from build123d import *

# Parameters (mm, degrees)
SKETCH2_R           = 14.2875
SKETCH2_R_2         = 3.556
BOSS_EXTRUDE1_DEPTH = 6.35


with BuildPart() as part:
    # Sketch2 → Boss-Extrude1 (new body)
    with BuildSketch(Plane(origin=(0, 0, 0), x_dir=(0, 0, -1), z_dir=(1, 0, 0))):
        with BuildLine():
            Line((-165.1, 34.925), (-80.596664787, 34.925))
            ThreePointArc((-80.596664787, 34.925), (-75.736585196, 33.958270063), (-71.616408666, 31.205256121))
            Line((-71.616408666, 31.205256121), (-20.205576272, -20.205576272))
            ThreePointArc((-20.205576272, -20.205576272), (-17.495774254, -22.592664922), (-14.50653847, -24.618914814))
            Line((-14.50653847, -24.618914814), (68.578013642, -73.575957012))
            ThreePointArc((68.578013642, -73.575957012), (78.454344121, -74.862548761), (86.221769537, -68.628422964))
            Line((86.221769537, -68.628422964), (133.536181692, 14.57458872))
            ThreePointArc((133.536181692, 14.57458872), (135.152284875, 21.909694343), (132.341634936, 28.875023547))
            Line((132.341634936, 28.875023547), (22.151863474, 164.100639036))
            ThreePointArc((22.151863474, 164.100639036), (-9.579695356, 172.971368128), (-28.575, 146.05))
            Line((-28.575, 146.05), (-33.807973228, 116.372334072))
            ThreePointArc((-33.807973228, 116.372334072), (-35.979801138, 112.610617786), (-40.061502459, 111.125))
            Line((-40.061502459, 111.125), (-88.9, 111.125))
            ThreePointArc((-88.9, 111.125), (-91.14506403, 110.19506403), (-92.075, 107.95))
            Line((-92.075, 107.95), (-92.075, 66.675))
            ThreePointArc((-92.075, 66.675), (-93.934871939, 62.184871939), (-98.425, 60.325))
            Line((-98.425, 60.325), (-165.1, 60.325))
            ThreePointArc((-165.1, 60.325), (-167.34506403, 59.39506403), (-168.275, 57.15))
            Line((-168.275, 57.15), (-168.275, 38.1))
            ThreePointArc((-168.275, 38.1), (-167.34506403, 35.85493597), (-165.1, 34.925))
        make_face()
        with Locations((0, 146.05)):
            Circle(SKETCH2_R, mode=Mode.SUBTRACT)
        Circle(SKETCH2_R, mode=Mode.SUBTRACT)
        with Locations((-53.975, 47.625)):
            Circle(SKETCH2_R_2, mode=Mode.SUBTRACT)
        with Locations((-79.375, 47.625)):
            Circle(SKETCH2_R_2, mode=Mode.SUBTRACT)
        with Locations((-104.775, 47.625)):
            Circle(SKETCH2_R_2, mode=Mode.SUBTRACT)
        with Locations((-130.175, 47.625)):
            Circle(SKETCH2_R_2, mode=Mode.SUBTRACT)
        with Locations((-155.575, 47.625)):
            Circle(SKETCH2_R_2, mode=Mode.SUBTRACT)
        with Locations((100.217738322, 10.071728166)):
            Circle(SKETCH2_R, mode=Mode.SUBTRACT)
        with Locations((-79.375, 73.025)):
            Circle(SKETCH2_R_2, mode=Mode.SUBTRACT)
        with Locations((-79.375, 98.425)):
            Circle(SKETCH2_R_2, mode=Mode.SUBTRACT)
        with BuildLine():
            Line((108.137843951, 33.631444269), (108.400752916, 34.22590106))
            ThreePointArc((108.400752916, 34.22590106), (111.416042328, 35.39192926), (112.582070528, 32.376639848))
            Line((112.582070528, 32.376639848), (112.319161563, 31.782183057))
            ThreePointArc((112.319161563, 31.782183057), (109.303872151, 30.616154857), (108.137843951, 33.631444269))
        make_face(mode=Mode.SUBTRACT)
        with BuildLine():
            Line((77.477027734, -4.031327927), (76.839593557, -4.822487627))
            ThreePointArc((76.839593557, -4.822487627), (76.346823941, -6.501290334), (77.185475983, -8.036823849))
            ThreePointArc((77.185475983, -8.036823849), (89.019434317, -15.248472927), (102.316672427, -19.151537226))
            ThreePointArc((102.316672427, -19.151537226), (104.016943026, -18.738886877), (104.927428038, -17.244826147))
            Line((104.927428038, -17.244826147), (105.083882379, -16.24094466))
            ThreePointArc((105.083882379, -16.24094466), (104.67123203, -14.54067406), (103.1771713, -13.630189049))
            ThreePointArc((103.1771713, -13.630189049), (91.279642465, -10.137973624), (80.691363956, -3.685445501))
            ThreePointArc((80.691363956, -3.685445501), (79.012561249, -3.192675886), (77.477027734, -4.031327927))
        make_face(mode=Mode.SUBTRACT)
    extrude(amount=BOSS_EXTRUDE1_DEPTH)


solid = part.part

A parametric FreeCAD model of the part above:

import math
import FreeCAD as App
import Part
import Sketcher
Q = App.Units.Quantity

doc = App.newDocument("Part")
body = doc.addObject("PartDesign::Body", "Body")

# Sketch on YZ plane
sketch1 = body.newObject("Sketcher::SketchObject", "Sketch")
sketch1.AttachmentSupport = (doc.getObject("YZ_Plane"), [""])
sketch1.MapMode = "FlatFace"
sketch1.addGeometry(Part.LineSegment(App.Vector(34.9, 165.1, 0), App.Vector(34.9, 80.6, 0)), False)
sketch1.addGeometry(Part.ArcOfCircle(Part.Circle(App.Vector(22.2, 80.6, 0), App.Vector(0, 0, 1), 12.7), math.radians(-45), math.radians(0)), False)
sketch1.addGeometry(Part.LineSegment(App.Vector(31.2, 71.6, 0), App.Vector(-20.2, 20.2, 0)), False)
sketch1.addGeometry(Part.ArcOfCircle(Part.Circle(App.Vector(0, 0, 0), App.Vector(0, 0, 1), 28.6), math.radians(135), math.radians(149.49)), False)
sketch1.addGeometry(Part.LineSegment(App.Vector(-24.6, 14.5, 0), App.Vector(-73.6, -68.6, 0)), False)
sketch1.addGeometry(Part.ArcOfCircle(Part.Circle(App.Vector(-62.6, -75, 0), App.Vector(0, 0, 1), 12.7), math.radians(149), math.radians(242)), False)
sketch1.addGeometry(Part.LineSegment(App.Vector(-68.6, -86.2, 0), App.Vector(14.6, -133.5, 0)), False)
sketch1.addGeometry(Part.ArcOfCircle(Part.Circle(App.Vector(20.9, -122.5, 0), App.Vector(0, 0, 1), 12.7), math.radians(-120), math.radians(-51)), False)
sketch1.addGeometry(Part.LineSegment(App.Vector(28.9, -132.3, 0), App.Vector(164.1, -22.2, 0)), False)
sketch1.addGeometry(Part.ArcOfCircle(Part.Circle(App.Vector(146.1, 0, 0), App.Vector(0, 0, 1), 28.6), math.radians(-51), math.radians(90)), False)
sketch1.addGeometry(Part.LineSegment(App.Vector(146.1, 28.6, 0), App.Vector(116.4, 33.8, 0)), False)
sketch1.addGeometry(Part.ArcOfCircle(Part.Circle(App.Vector(117.5, 40.1, 0), App.Vector(0, 0, 1), 6.3), math.radians(180), math.radians(260)), False)
sketch1.addGeometry(Part.LineSegment(App.Vector(111.1, 40.1, 0), App.Vector(111.1, 88.9, 0)), False)
sketch1.addGeometry(Part.ArcOfCircle(Part.Circle(App.Vector(107.9, 88.9, 0), App.Vector(0, 0, 1), 3.2), math.radians(0), math.radians(90)), False)
sketch1.addGeometry(Part.LineSegment(App.Vector(108, 92.1, 0), App.Vector(66.7, 92.1, 0)), False)
sketch1.addGeometry(Part.ArcOfCircle(Part.Circle(App.Vector(66.7, 98.4, 0), App.Vector(0, 0, 1), 6.3), math.radians(180), math.radians(270)), False)
sketch1.addGeometry(Part.LineSegment(App.Vector(60.3, 98.4, 0), App.Vector(60.3, 165.1, 0)), False)
sketch1.addGeometry(Part.ArcOfCircle(Part.Circle(App.Vector(57.1, 165.1, 0), App.Vector(0, 0, 1), 3.2), math.radians(0), math.radians(90)), False)
sketch1.addGeometry(Part.LineSegment(App.Vector(57.1, 168.3, 0), App.Vector(38.1, 168.3, 0)), False)
sketch1.addGeometry(Part.ArcOfCircle(Part.Circle(App.Vector(38.1, 165.1, 0), App.Vector(0, 0, 1), 3.2), math.radians(90), math.radians(180)), False)
sketch1.addGeometry(Part.Circle(App.Vector(47.6, 155.6, 0), App.Vector(0, 0, 1), 3.6), False)
sketch1.addGeometry(Part.Circle(App.Vector(47.6, 130.2, 0), App.Vector(0, 0, 1), 3.6), False)
sketch1.addGeometry(Part.Circle(App.Vector(47.6, 104.8, 0), App.Vector(0, 0, 1), 3.6), False)
sketch1.addGeometry(Part.Circle(App.Vector(47.6, 79.4, 0), App.Vector(0, 0, 1), 3.6), False)
sketch1.addGeometry(Part.Circle(App.Vector(47.6, 54, 0), App.Vector(0, 0, 1), 3.6), False)
sketch1.addGeometry(Part.Circle(App.Vector(0, 0, 0), App.Vector(0, 0, 1), 14.3), False)
sketch1.addGeometry(Part.LineSegment(App.Vector(-4.8, -76.8, 0), App.Vector(-4, -77.5, 0)), False)
sketch1.addGeometry(Part.ArcOfCircle(Part.Circle(App.Vector(-5.5, -79.3, 0), App.Vector(0, 0, 1), 2.3), math.radians(-39), math.radians(51)), False)
sketch1.addGeometry(Part.ArcOfCircle(Part.Circle(App.Vector(33.3, -110.5, 0), App.Vector(0, 0, 1), 47.5), math.radians(141), math.radians(171)), False)
sketch1.addGeometry(Part.ArcOfCircle(Part.Circle(App.Vector(-15.9, -102.8, 0), App.Vector(0, 0, 1), 2.3), math.radians(-99), math.radians(-9)), False)
sketch1.addGeometry(Part.LineSegment(App.Vector(-16.2, -105.1, 0), App.Vector(-17.2, -104.9, 0)), False)
sketch1.addGeometry(Part.ArcOfCircle(Part.Circle(App.Vector(-16.9, -102.7, 0), App.Vector(0, 0, 1), 2.3), math.radians(171), math.radians(261)), False)
sketch1.addGeometry(Part.ArcOfCircle(Part.Circle(App.Vector(33.3, -110.5, 0), App.Vector(0, 0, 1), 53.1), math.radians(141), math.radians(171)), False)
sketch1.addGeometry(Part.ArcOfCircle(Part.Circle(App.Vector(-6.3, -78.6, 0), App.Vector(0, 0, 1), 2.3), math.radians(51), math.radians(141)), False)
sketch1.addGeometry(Part.Circle(App.Vector(10.1, -100.2, 0), App.Vector(0, 0, 1), 14.3), False)
sketch1.addGeometry(Part.ArcOfCircle(Part.Circle(App.Vector(32.7, -110.2, 0), App.Vector(0, 0, 1), 2.3), math.radians(66), math.radians(246)), False)
sketch1.addGeometry(Part.LineSegment(App.Vector(33.6, -108.1, 0), App.Vector(34.2, -108.4, 0)), False)
sketch1.addGeometry(Part.ArcOfCircle(Part.Circle(App.Vector(33.3, -110.5, 0), App.Vector(0, 0, 1), 2.3), math.radians(-114), math.radians(66)), False)
sketch1.addGeometry(Part.LineSegment(App.Vector(32.4, -112.6, 0), App.Vector(31.8, -112.3, 0)), False)
sketch1.addGeometry(Part.Circle(App.Vector(73, 79.4, 0), App.Vector(0, 0, 1), 3.6), False)
sketch1.addGeometry(Part.Circle(App.Vector(98.4, 79.4, 0), App.Vector(0, 0, 1), 3.6), False)
sketch1.addGeometry(Part.Circle(App.Vector(146.1, 0, 0), App.Vector(0, 0, 1), 14.3), False)
sketch1.addConstraint(Sketcher.Constraint("Tangent", 0, 2, 1, 2))
sketch1.addConstraint(Sketcher.Constraint("Tangent", 1, 1, 2, 1))
sketch1.addConstraint(Sketcher.Constraint("Tangent", 2, 2, 3, 1))
sketch1.addConstraint(Sketcher.Constraint("Tangent", 3, 2, 4, 1))
sketch1.addConstraint(Sketcher.Constraint("Tangent", 4, 2, 5, 1))
sketch1.addConstraint(Sketcher.Constraint("Coincident", 5, 2, 6, 1))
sketch1.addConstraint(Sketcher.Constraint("Tangent", 6, 2, 7, 1))
sketch1.addConstraint(Sketcher.Constraint("Tangent", 7, 2, 8, 1))
sketch1.addConstraint(Sketcher.Constraint("Tangent", 8, 2, 9, 1))
sketch1.addConstraint(Sketcher.Constraint("Coincident", 9, 2, 10, 1))
sketch1.addConstraint(Sketcher.Constraint("Tangent", 10, 2, 11, 2))
sketch1.addConstraint(Sketcher.Constraint("Tangent", 11, 1, 12, 1))
sketch1.addConstraint(Sketcher.Constraint("Tangent", 12, 2, 13, 1))
sketch1.addConstraint(Sketcher.Constraint("Tangent", 13, 2, 14, 1))
sketch1.addConstraint(Sketcher.Constraint("Tangent", 14, 2, 15, 2))
sketch1.addConstraint(Sketcher.Constraint("Tangent", 15, 1, 16, 1))
sketch1.addConstraint(Sketcher.Constraint("Tangent", 16, 2, 17, 1))
sketch1.addConstraint(Sketcher.Constraint("Tangent", 17, 2, 18, 1))
sketch1.addConstraint(Sketcher.Constraint("Tangent", 18, 2, 19, 1))
sketch1.addConstraint(Sketcher.Constraint("Tangent", 19, 2, 0, 1))
sketch1.addConstraint(Sketcher.Constraint("Tangent", 26, 2, 27, 2))
sketch1.addConstraint(Sketcher.Constraint("Tangent", 27, 1, 28, 1))
sketch1.addConstraint(Sketcher.Constraint("Tangent", 28, 2, 29, 2))
sketch1.addConstraint(Sketcher.Constraint("Tangent", 29, 1, 30, 1))
sketch1.addConstraint(Sketcher.Constraint("Tangent", 30, 2, 31, 2))
sketch1.addConstraint(Sketcher.Constraint("Tangent", 31, 1, 32, 2))
sketch1.addConstraint(Sketcher.Constraint("Tangent", 32, 1, 33, 2))
sketch1.addConstraint(Sketcher.Constraint("Tangent", 33, 1, 26, 1))
sketch1.addConstraint(Sketcher.Constraint("Tangent", 35, 1, 36, 1))
sketch1.addConstraint(Sketcher.Constraint("Tangent", 36, 2, 37, 2))
sketch1.addConstraint(Sketcher.Constraint("Tangent", 37, 1, 38, 1))
sketch1.addConstraint(Sketcher.Constraint("Tangent", 38, 2, 35, 2))
sketch1.addConstraint(Sketcher.Constraint("Vertical", 0))
sketch1.addConstraint(Sketcher.Constraint("Vertical", 12))
sketch1.addConstraint(Sketcher.Constraint("Horizontal", 14))
sketch1.addConstraint(Sketcher.Constraint("Vertical", 16))
sketch1.addConstraint(Sketcher.Constraint("Horizontal", 18))
sketch1.addConstraint(Sketcher.Constraint("Coincident", 3, 3, -1, 1))
sketch1.addConstraint(Sketcher.Constraint("Coincident", 25, 3, -1, 1))
sketch1.addConstraint(Sketcher.Constraint("Coincident", 32, 3, 28, 3))
sketch1.addConstraint(Sketcher.Constraint("Coincident", 37, 3, 28, 3))
sketch1.addConstraint(Sketcher.Constraint("Coincident", 41, 3, 9, 3))
sketch1.addConstraint(Sketcher.Constraint("Equal", 1, 5))
sketch1.addConstraint(Sketcher.Constraint("Equal", 5, 7))
sketch1.addConstraint(Sketcher.Constraint("Equal", 3, 9))
sketch1.addConstraint(Sketcher.Constraint("Equal", 11, 15))
sketch1.addConstraint(Sketcher.Constraint("Equal", 13, 17))
sketch1.addConstraint(Sketcher.Constraint("Equal", 17, 19))
sketch1.addConstraint(Sketcher.Constraint("Equal", 20, 21))
sketch1.addConstraint(Sketcher.Constraint("Equal", 21, 22))
sketch1.addConstraint(Sketcher.Constraint("Equal", 22, 23))
sketch1.addConstraint(Sketcher.Constraint("Equal", 23, 24))
sketch1.addConstraint(Sketcher.Constraint("Equal", 27, 29))
sketch1.addConstraint(Sketcher.Constraint("Equal", 29, 31))
sketch1.addConstraint(Sketcher.Constraint("Equal", 31, 33))
sketch1.addConstraint(Sketcher.Constraint("Equal", 25, 34))
sketch1.addConstraint(Sketcher.Constraint("Equal", 33, 35))
sketch1.addConstraint(Sketcher.Constraint("Equal", 35, 37))
sketch1.addConstraint(Sketcher.Constraint("Equal", 24, 39))
sketch1.addConstraint(Sketcher.Constraint("Equal", 39, 40))
sketch1.addConstraint(Sketcher.Constraint("Equal", 34, 41))
sketch1.addConstraint(Sketcher.Constraint("PointOnObject", 9, 3, -1))
sketch1.addConstraint(Sketcher.Constraint("Horizontal", 23, 3, 39, 3))
sketch1.addConstraint(Sketcher.Constraint("Horizontal", 39, 3, 40, 3))
sketch1.addConstraint(Sketcher.Constraint("Vertical", 20, 3, 21, 3))
sketch1.addConstraint(Sketcher.Constraint("Vertical", 21, 3, 22, 3))
sketch1.addConstraint(Sketcher.Constraint("Vertical", 22, 3, 23, 3))
sketch1.addConstraint(Sketcher.Constraint("Vertical", 23, 3, 24, 3))
sketch1.addConstraint(Sketcher.Constraint("Vertical", 41, 3, 9, 2))
sketch1.addConstraint(Sketcher.Constraint("Radius", 1, Q("0.5 in")))
sketch1.addConstraint(Sketcher.Constraint("Diameter", 20, Q("0.28 in")))
sketch1.addConstraint(Sketcher.Constraint("Radius", 11, Q("0.25 in")))
sketch1.addConstraint(Sketcher.Constraint("Radius", 27, Q("0.09 in")))
sketch1.addConstraint(Sketcher.Constraint("Radius", 28, Q("1.87 in")))
sketch1.addConstraint(Sketcher.Constraint("Radius", 32, Q("2.09 in")))
sketch1.addConstraint(Sketcher.Constraint("Diameter", 25, Q("1.125 in")))
sketch1.addConstraint(Sketcher.Constraint("Angle", 2, Q("-135 deg")))
sketch1.addConstraint(Sketcher.Constraint("Angle", 10, Q("170 deg")))
sketch1.addConstraint(Sketcher.Constraint("Radius", 3, Q("1.125 in")))
sketch1.addConstraint(Sketcher.Constraint("Radius", 13, Q("0.125 in")))
sketch1.addConstraint(Sketcher.Constraint("DistanceX", 15, 3, 11, 3, Q("2 in")))
sketch1.addConstraint(Sketcher.Constraint("DistanceY", 13, 3, 17, 3, Q("3 in")))
sketch1.addConstraint(Sketcher.Constraint("DistanceX", 1, 3, 20, 3, Q("1 in")))
sketch1.addConstraint(Sketcher.Constraint("DistanceY", 21, 3, 20, 3, Q("1 in")))
sketch1.addConstraint(Sketcher.Constraint("DistanceY", 22, 3, 21, 3, Q("1 in")))
sketch1.addConstraint(Sketcher.Constraint("DistanceY", 23, 3, 22, 3, Q("1 in")))
sketch1.addConstraint(Sketcher.Constraint("DistanceY", 24, 3, 23, 3, Q("1 in")))
sketch1.addConstraint(Sketcher.Constraint("DistanceX", 23, 3, 39, 3, Q("1 in")))
sketch1.addConstraint(Sketcher.Constraint("DistanceX", 39, 3, 40, 3, Q("1 in")))
sketch1.addConstraint(Sketcher.Constraint("DistanceY", 9, 2, 40, 3, Q("2 in")))
sketch1.addConstraint(Sketcher.Constraint("DistanceX", 18, 2, 18, 1, Q("0.75 in")))
sketch1.addConstraint(Sketcher.Constraint("DistanceY", -1, 1, 13, 3, Q("3.5 in")))
sketch1.addConstraint(Sketcher.Constraint("DistanceX", -1, 1, 19, 3, Q("1.5 in")))
sketch1.addConstraint(Sketcher.Constraint("DistanceX", 13, 3, 9, 3, Q("1.5 in")))
sketch1.addConstraint(Sketcher.Constraint("Distance", 36, 0.65))
sketch1.addConstraint(Sketcher.Constraint("DistanceX", -1, 1, 36, 2, 34.225901))
sketch1.addConstraint(Sketcher.Constraint("DistanceY", 7, 3, 5, 3, 47.470998))
sketch1.addConstraint(Sketcher.Constraint("DistanceY", 34, 3, 27, 3, 20.960601))
sketch1.addConstraint(Sketcher.Constraint("DistanceX", 5, 2, 29, 3, 52.739501))
sketch1.addConstraint(Sketcher.Constraint("DistanceX", 29, 1, 27, 1, 12.555499))
sketch1.addConstraint(Sketcher.Constraint("DistanceY", 28, 2, 31, 1, 0.860499))
sketch1.addConstraint(Sketcher.Constraint("Distance", 4, 96.435651))
sketch1.addConstraint(Sketcher.Constraint("DistanceX", -1, 1, 28, 3, 33.30127))
sketch1.addConstraint(Sketcher.Constraint("DistanceY", 28, 3, -1, 1, 110.491412))
sketch1.addConstraint(Sketcher.Constraint("DistanceY", 29, 3, -1, 1, 102.825149))
sketch1.addConstraint(Sketcher.Constraint("DistanceX", -1, 1, 34, 3, 10.071728))
sketch1.addConstraint(Sketcher.Constraint("DistanceY", -1, 1, 3, 2, 14.506538))
sketch1.addConstraint(Sketcher.Constraint("DistanceX", -1, 1, 6, 2, 14.574589))
sketch1.addConstraint(Sketcher.Constraint("DistanceX", 33, 3, 27, 3, 0.79116))
pad1 = body.newObject("PartDesign::Pad", "Pad")
pad1.Profile = sketch1
pad1.Length = Q("0.25 in")

doc.recompute()
